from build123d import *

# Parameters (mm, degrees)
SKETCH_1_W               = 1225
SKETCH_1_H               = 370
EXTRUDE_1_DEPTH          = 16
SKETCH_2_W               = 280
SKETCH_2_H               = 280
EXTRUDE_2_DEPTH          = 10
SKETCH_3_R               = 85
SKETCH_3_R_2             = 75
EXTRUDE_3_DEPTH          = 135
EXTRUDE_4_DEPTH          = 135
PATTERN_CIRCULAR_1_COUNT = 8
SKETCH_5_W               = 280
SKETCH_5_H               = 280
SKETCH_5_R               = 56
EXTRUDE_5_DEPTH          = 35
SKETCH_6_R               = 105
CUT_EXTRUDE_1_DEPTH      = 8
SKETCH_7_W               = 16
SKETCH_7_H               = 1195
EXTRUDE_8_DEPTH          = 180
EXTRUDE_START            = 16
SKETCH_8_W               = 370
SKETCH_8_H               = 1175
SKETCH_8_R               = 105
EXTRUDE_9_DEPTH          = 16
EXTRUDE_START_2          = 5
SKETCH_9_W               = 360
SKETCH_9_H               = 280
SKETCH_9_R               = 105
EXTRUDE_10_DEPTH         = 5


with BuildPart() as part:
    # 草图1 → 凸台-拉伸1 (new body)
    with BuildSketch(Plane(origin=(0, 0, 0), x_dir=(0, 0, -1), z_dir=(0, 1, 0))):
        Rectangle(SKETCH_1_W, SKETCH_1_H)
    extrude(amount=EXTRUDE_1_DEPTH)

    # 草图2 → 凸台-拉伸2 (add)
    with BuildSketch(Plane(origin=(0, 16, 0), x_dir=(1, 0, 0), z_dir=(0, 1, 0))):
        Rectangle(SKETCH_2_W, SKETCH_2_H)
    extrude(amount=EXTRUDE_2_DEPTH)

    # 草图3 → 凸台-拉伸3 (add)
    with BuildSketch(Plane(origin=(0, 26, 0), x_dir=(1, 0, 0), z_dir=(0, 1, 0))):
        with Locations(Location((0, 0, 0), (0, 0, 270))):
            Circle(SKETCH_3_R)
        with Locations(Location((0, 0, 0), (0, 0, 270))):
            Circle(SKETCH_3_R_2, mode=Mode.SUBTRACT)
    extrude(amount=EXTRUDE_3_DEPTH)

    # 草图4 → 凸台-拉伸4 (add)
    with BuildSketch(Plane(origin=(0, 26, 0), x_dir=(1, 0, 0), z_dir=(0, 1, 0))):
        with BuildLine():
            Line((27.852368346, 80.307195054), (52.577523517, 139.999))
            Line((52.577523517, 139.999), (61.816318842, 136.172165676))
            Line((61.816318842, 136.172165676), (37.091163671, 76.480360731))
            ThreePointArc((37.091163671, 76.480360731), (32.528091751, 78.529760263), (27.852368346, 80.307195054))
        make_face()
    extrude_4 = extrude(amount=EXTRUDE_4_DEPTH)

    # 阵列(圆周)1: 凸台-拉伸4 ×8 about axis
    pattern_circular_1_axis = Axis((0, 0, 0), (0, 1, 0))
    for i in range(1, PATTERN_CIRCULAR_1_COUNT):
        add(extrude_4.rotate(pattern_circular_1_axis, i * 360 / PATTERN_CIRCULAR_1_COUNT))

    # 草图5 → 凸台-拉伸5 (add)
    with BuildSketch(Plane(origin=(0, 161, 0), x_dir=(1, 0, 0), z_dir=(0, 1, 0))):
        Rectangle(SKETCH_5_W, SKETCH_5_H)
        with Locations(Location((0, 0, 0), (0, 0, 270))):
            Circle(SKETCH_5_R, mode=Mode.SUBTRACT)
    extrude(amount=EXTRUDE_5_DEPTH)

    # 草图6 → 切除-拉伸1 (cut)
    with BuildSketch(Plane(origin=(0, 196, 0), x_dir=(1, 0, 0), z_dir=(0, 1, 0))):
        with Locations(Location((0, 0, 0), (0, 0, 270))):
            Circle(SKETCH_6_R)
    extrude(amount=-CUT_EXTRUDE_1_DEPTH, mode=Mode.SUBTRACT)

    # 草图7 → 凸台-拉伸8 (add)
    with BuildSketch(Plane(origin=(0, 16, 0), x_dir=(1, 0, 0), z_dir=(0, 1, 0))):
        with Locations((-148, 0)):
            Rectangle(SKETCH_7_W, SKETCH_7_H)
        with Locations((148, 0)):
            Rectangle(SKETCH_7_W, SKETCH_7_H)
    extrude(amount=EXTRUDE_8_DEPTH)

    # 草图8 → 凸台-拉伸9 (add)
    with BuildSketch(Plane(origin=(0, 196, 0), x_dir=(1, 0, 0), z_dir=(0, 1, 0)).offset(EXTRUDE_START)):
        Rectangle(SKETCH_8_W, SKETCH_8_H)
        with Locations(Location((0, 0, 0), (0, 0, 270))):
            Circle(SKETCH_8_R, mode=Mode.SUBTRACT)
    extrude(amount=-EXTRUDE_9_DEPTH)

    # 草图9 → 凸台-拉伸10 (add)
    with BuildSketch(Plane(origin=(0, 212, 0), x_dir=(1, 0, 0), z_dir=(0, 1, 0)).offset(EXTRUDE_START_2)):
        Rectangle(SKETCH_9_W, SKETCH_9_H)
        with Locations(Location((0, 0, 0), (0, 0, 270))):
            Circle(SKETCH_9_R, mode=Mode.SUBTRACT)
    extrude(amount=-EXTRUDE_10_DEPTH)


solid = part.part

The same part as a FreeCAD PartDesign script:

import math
import FreeCAD as App
import Part
import Sketcher
from FreeCAD import Vector
Q = App.Units.Quantity

doc = App.newDocument("Part")
body = doc.addObject("PartDesign::Body", "Body")

sketch1 = doc.addObject("Sketcher::SketchObject", "Sketch")
body.addObject(sketch1)
sketch1.AttachmentSupport = (doc.XZ_Plane, [""])
sketch1.MapMode = "FlatFace"
sketch1.addGeometry(Part.LineSegment(Vector(-185, 612, 0), Vector(185, 612, 0)), False)
sketch1.addGeometry(Part.LineSegment(Vector(185, 612, 0), Vector(185, -612, 0)), False)
sketch1.addGeometry(Part.LineSegment(Vector(185, -612, 0), Vector(-185, -612, 0)), False)
sketch1.addGeometry(Part.LineSegment(Vector(-185, -612, 0), Vector(-185, 612, 0)), False)
sketch1.addConstraint(Sketcher.Constraint("Coincident", 0, 2, 1, 1))
sketch1.addConstraint(Sketcher.Constraint("Coincident", 1, 2, 2, 1))
sketch1.addConstraint(Sketcher.Constraint("Coincident", 2, 2, 3, 1))
sketch1.addConstraint(Sketcher.Constraint("Coincident", 3, 2, 0, 1))
sketch1.addConstraint(Sketcher.Constraint("Horizontal", 0))
sketch1.addConstraint(Sketcher.Constraint("Vertical", 1))
sketch1.addConstraint(Sketcher.Constraint("Horizontal", 2))
sketch1.addConstraint(Sketcher.Constraint("Vertical", 3))
sketch1.addConstraint(Sketcher.Constraint("Symmetric", 0, 2, 2, 2, -1, 1))
sketch1.addConstraint(Sketcher.Constraint("DistanceX", 0, 1, 0, 2, Q("370 mm")))
sketch1.addConstraint(Sketcher.Constraint("DistanceY", 1, 2, 1, 1, Q("1225 mm")))
pad1 = doc.addObject("PartDesign::Pad", "Pad")
body.addObject(pad1)
pad1.Profile = sketch1
pad1.Length = 16
pad1.Reversed = True

sketch2 = doc.addObject("Sketcher::SketchObject", "Sketch001")
body.addObject(sketch2)
sketch2.AttachmentSupport = (doc.XZ_Plane, [""])
sketch2.MapMode = "FlatFace"
sketch2.AttachmentOffset = App.Placement(Vector(0, 0, -16), App.Rotation())
sketch2.addGeometry(Part.LineSegment(Vector(-140, -140, 0), Vector(-140, 140, 0)), False)
sketch2.addGeometry(Part.LineSegment(Vector(-140, 140, 0), Vector(140, 140, 0)), False)
sketch2.addGeometry(Part.LineSegment(Vector(140, 140, 0), Vector(140, -140, 0)), False)
sketch2.addGeometry(Part.LineSegment(Vector(140, -140, 0), Vector(-140, -140, 0)), False)
sketch2.addConstraint(Sketcher.Constraint("Coincident", 0, 2, 1, 1))
sketch2.addConstraint(Sketcher.Constraint("Coincident", 1, 2, 2, 1))
sketch2.addConstraint(Sketcher.Constraint("Coincident", 2, 2, 3, 1))
sketch2.addConstraint(Sketcher.Constraint("Coincident", 3, 2, 0, 1))
sketch2.addConstraint(Sketcher.Constraint("Vertical", 0))
sketch2.addConstraint(Sketcher.Constraint("Horizontal", 1))
sketch2.addConstraint(Sketcher.Constraint("Vertical", 2))
sketch2.addConstraint(Sketcher.Constraint("Horizontal", 3))
sketch2.addConstraint(Sketcher.Constraint("Symmetric", 0, 2, 2, 2, -1, 1))
sketch2.addConstraint(Sketcher.Constraint("Equal", 3, 0))
sketch2.addConstraint(Sketcher.Constraint("DistanceX", 1, 1, 1, 2, Q("280 mm")))
pad2 = doc.addObject("PartDesign::Pad", "Pad001")
body.addObject(pad2)
pad2.Profile = sketch2
pad2.Length = 10
pad2.Reversed = True

sketch3 = doc.addObject("Sketcher::SketchObject", "Sketch002")
body.addObject(sketch3)
sketch3.AttachmentSupport = (doc.XZ_Plane, [""])
sketch3.MapMode = "FlatFace"
sketch3.AttachmentOffset = App.Placement(Vector(0, 0, -26), App.Rotation())
sketch3.addGeometry(Part.Circle(Vector(0, 0, 0), Vector(0, 0, 1), 85), False)
sketch3.addGeometry(Part.Circle(Vector(0, 0, 0), Vector(0, 0, 1), 75), False)
sketch3.addConstraint(Sketcher.Constraint("Coincident", 0, 3, -1, 1))
sketch3.addConstraint(Sketcher.Constraint("Coincident", 1, 3, -1, 1))
sketch3.addConstraint(Sketcher.Constraint("Diameter", 0, Q("170 mm")))
sketch3.addConstraint(Sketcher.Constraint("Diameter", 1, Q("150 mm")))
pad3 = doc.addObject("PartDesign::Pad", "Pad002")
body.addObject(pad3)
pad3.Profile = sketch3
pad3.Length = 135
pad3.Reversed = True

sketch4 = doc.addObject("Sketcher::SketchObject", "Sketch003")
body.addObject(sketch4)
sketch4.AttachmentSupport = (doc.XZ_Plane, [""])
sketch4.MapMode = "FlatFace"
sketch4.AttachmentOffset = App.Placement(Vector(0, 0, -26), App.Rotation())
sketch4.addGeometry(Part.LineSegment(Vector(53, -140, 0), Vector(28, -80, 0)), False)
sketch4.addGeometry(Part.ArcOfCircle(Part.Circle(Vector(0, 0, 0), Vector(0, 0, 1), 85), math.radians(-70.87), math.radians(-64.13)), False)
sketch4.addGeometry(Part.LineSegment(Vector(37, -76, 0), Vector(62, -136, 0)), False)
sketch4.addGeometry(Part.LineSegment(Vector(62, -136, 0), Vector(53, -140, 0)), False)
sketch4.addConstraint(Sketcher.Constraint("Coincident", 0, 2, 1, 1))
sketch4.addConstraint(Sketcher.Constraint("Coincident", 1, 2, 2, 1))
sketch4.addConstraint(Sketcher.Constraint("Coincident", 2, 2, 3, 1))
sketch4.addConstraint(Sketcher.Constraint("Coincident", 3, 2, 0, 1))
sketch4.addConstraint(Sketcher.Constraint("Coincident", 1, 3, -1, 1))
sketch4.addConstraint(Sketcher.Constraint("Parallel", 0, 2))
sketch4.addConstraint(Sketcher.Constraint("Perpendicular", 2, 3))
sketch4.addConstraint(Sketcher.Constraint("Equal", 0, 2))
sketch4.addConstraint(Sketcher.Constraint("Radius", 1, Q("85 mm")))
sketch4.addConstraint(Sketcher.Constraint("Distance", 3, Q("10 mm")))
sketch4.addConstraint(Sketcher.Constraint("Angle", 0, Q("112.5 deg")))
sketch4.addConstraint(Sketcher.Constraint("DistanceY", 3, 2, -1, 1, Q("139.999 mm")))
pad4 = doc.addObject("PartDesign::Pad", "Pad003")
body.addObject(pad4)
pad4.Profile = sketch4
pad4.Length = 135
pad4.Reversed = True
doc.recompute()

polarpattern = doc.addObject("PartDesign::PolarPattern", "PolarPattern")
body.addObject(polarpattern)
polarpattern.Originals = [pad4]
polarpattern.Axis = (doc.Y_Axis, [""])
polarpattern.Angle = 360
polarpattern.Occurrences = 8
body.Tip = polarpattern

sketch5 = doc.addObject("Sketcher::SketchObject", "Sketch004")
body.addObject(sketch5)
sketch5.AttachmentSupport = (doc.XZ_Plane, [""])
sketch5.MapMode = "FlatFace"
sketch5.AttachmentOffset = App.Placement(Vector(0, 0, -161), App.Rotation())
sketch5.addGeometry(Part.LineSegment(Vector(-140, -140, 0), Vector(-140, 140, 0)), False)
sketch5.addGeometry(Part.LineSegment(Vector(-140, 140, 0), Vector(140, 140, 0)), False)
sketch5.addGeometry(Part.LineSegment(Vector(140, 140, 0), Vector(140, -140, 0)), False)
sketch5.addGeometry(Part.LineSegment(Vector(140, -140, 0), Vector(-140, -140, 0)), False)
sketch5.addGeometry(Part.Circle(Vector(0, 0, 0), Vector(0, 0, 1), 56), False)
sketch5.addConstraint(Sketcher.Constraint("Coincident", 0, 2, 1, 1))
sketch5.addConstraint(Sketcher.Constraint("Coincident", 1, 2, 2, 1))
sketch5.addConstraint(Sketcher.Constraint("Coincident", 2, 2, 3, 1))
sketch5.addConstraint(Sketcher.Constraint("Coincident", 3, 2, 0, 1))
sketch5.addConstraint(Sketcher.Constraint("Vertical", 0))
sketch5.addConstraint(Sketcher.Constraint("Horizontal", 1))
sketch5.addConstraint(Sketcher.Constraint("Vertical", 2))
sketch5.addConstraint(Sketcher.Constraint("Horizontal", 3))
sketch5.addConstraint(Sketcher.Constraint("Coincident", 4, 3, -1, 1))
sketch5.addConstraint(Sketcher.Constraint("Symmetric", 0, 2, 2, 2, -1, 1))
sketch5.addConstraint(Sketcher.Constraint("Equal", 3, 0))
sketch5.addConstraint(Sketcher.Constraint("Diameter", 4, Q("112 mm")))
sketch5.addConstraint(Sketcher.Constraint("DistanceX", 1, 1, 1, 2, Q("280 mm")))
pad5 = doc.addObject("PartDesign::Pad", "Pad004")
body.addObject(pad5)
pad5.Profile = sketch5
pad5.Length = 35
pad5.Reversed = True

sketch6 = doc.addObject("Sketcher::SketchObject", "Sketch005")
body.addObject(sketch6)
sketch6.AttachmentSupport = (doc.XZ_Plane, [""])
sketch6.MapMode = "FlatFace"
sketch6.AttachmentOffset = App.Placement(Vector(0, 0, -196), App.Rotation())
sketch6.addGeometry(Part.Circle(Vector(0, 0, 0), Vector(0, 0, 1), 105), False)
sketch6.addConstraint(Sketcher.Constraint("Coincident", 0, 3, -1, 1))
sketch6.addConstraint(Sketcher.Constraint("Diameter", 0, Q("210 mm")))
pocket1 = doc.addObject("PartDesign::Pocket", "Pocket")
body.addObject(pocket1)
pocket1.Profile = sketch6
pocket1.Length = 8
pocket1.Reversed = True

sketch7 = doc.addObject("Sketcher::SketchObject", "Sketch006")
body.addObject(sketch7)
sketch7.AttachmentSupport = (doc.XZ_Plane, [""])
sketch7.MapMode = "FlatFace"
sketch7.AttachmentOffset = App.Placement(Vector(0, 0, -16), App.Rotation())
sketch7.addGeometry(Part.LineSegment(Vector(-156, -598, 0), Vector(-156, 598, 0)), False)
sketch7.addGeometry(Part.LineSegment(Vector(-156, 598, 0), Vector(-140, 598, 0)), False)
sketch7.addGeometry(Part.LineSegment(Vector(-140, 598, 0), Vector(-140, -598, 0)), False)
sketch7.addGeometry(Part.LineSegment(Vector(-140, -598, 0), Vector(-156, -598, 0)), False)
sketch7.addGeometry(Part.LineSegment(Vector(140, -598, 0), Vector(140, 598, 0)), False)
sketch7.addGeometry(Part.LineSegment(Vector(140, 598, 0), Vector(156, 598, 0)), False)
sketch7.addGeometry(Part.LineSegment(Vector(156, 598, 0), Vector(156, -598, 0)), False)
sketch7.addGeometry(Part.LineSegment(Vector(156, -598, 0), Vector(140, -598, 0)), False)
sketch7.addConstraint(Sketcher.Constraint("Coincident", 0, 2, 1, 1))
sketch7.addConstraint(Sketcher.Constraint("Coincident", 1, 2, 2, 1))
sketch7.addConstraint(Sketcher.Constraint("Coincident", 2, 2, 3, 1))
sketch7.addConstraint(Sketcher.Constraint("Coincident", 3, 2, 0, 1))
sketch7.addConstraint(Sketcher.Constraint("Coincident", 4, 2, 5, 1))
sketch7.addConstraint(Sketcher.Constraint("Coincident", 5, 2, 6, 1))
sketch7.addConstraint(Sketcher.Constraint("Coincident", 6, 2, 7, 1))
sketch7.addConstraint(Sketcher.Constraint("Coincident", 7, 2, 4, 1))
sketch7.addConstraint(Sketcher.Constraint("Vertical", 0))
sketch7.addConstraint(Sketcher.Constraint("Horizontal", 1))
sketch7.addConstraint(Sketcher.Constraint("Vertical", 2))
sketch7.addConstraint(Sketcher.Constraint("Horizontal", 3))
sketch7.addConstraint(Sketcher.Constraint("Vertical", 4))
sketch7.addConstraint(Sketcher.Constraint("Horizontal", 5))
sketch7.addConstraint(Sketcher.Constraint("Vertical", 6))
sketch7.addConstraint(Sketcher.Constraint("Horizontal", 7))
sketch7.addConstraint(Sketcher.Constraint("Symmetric", 2, 2, 4, 2, -1, 1))
sketch7.addConstraint(Sketcher.Constraint("Symmetric", 0, 2, 6, 2, -1, 1))
sketch7.addConstraint(Sketcher.Constraint("Horizontal", 1, 2, 4, 2))
sketch7.addConstraint(Sketcher.Constraint("DistanceX", 1, 1, 1, 2, Q("16 mm")))
sketch7.addConstraint(Sketcher.Constraint("DistanceY", 0, 1, 0, 2, Q("1195 mm")))
sketch7.addConstraint(Sketcher.Constraint("DistanceX", 0, 2, -1, 1, Q("156 mm")))
pad6 = doc.addObject("PartDesign::Pad", "Pad005")
body.addObject(pad6)
pad6.Profile = sketch7
pad6.Length = 180
pad6.Reversed = True

sketch8 = doc.addObject("Sketcher::SketchObject", "Sketch007")
body.addObject(sketch8)
sketch8.AttachmentSupport = (doc.XZ_Plane, [""])
sketch8.MapMode = "FlatFace"
sketch8.AttachmentOffset = App.Placement(Vector(0, 0, -212), App.Rotation())
sketch8.addGeometry(Part.LineSegment(Vector(-185, -588, 0), Vector(-185, 588, 0)), False)
sketch8.addGeometry(Part.LineSegment(Vector(-185, 588, 0), Vector(185, 588, 0)), False)
sketch8.addGeometry(Part.LineSegment(Vector(185, 588, 0), Vector(185, -588, 0)), False)
sketch8.addGeometry(Part.LineSegment(Vector(185, -588, 0), Vector(-185, -588, 0)), False)
sketch8.addGeometry(Part.Circle(Vector(0, 0, 0), Vector(0, 0, 1), 105), False)
sketch8.addConstraint(Sketcher.Constraint("Coincident", 0, 2, 1, 1))
sketch8.addConstraint(Sketcher.Constraint("Coincident", 1, 2, 2, 1))
sketch8.addConstraint(Sketcher.Constraint("Coincident", 2, 2, 3, 1))
sketch8.addConstraint(Sketcher.Constraint("Coincident", 3, 2, 0, 1))
sketch8.addConstraint(Sketcher.Constraint("Vertical", 0))
sketch8.addConstraint(Sketcher.Constraint("Horizontal", 1))
sketch8.addConstraint(Sketcher.Constraint("Vertical", 2))
sketch8.addConstraint(Sketcher.Constraint("Horizontal", 3))
sketch8.addConstraint(Sketcher.Constraint("Coincident", 4, 3, -1, 1))
sketch8.addConstraint(Sketcher.Constraint("Symmetric", 0, 2, 2, 2, -1, 1))
sketch8.addConstraint(Sketcher.Constraint("Diameter", 4, Q("210 mm")))
sketch8.addConstraint(Sketcher.Constraint("DistanceX", 1, 1, 1, 2, Q("370 mm")))
sketch8.addConstraint(Sketcher.Constraint("DistanceY", 0, 1, 0, 2, Q("1175 mm")))
pad7 = doc.addObject("PartDesign::Pad", "Pad006")
body.addObject(pad7)
pad7.Profile = sketch8
pad7.Length = 16

sketch9 = doc.addObject("Sketcher::SketchObject", "Sketch008")
body.addObject(sketch9)
sketch9.AttachmentSupport = (doc.XZ_Plane, [""])
sketch9.MapMode = "FlatFace"
sketch9.AttachmentOffset = App.Placement(Vector(0, 0, -217), App.Rotation())
sketch9.addGeometry(Part.LineSegment(Vector(-180, -140, 0), Vector(-180, 140, 0)), False)
sketch9.addGeometry(Part.LineSegment(Vector(-180, 140, 0), Vector(180, 140, 0)), False)
sketch9.addGeometry(Part.LineSegment(Vector(180, 140, 0), Vector(180, -140, 0)), False)
sketch9.addGeometry(Part.LineSegment(Vector(180, -140, 0), Vector(-180, -140, 0)), False)
sketch9.addGeometry(Part.Circle(Vector(0, 0, 0), Vector(0, 0, 1), 105), False)
sketch9.addConstraint(Sketcher.Constraint("Coincident", 0, 2, 1, 1))
sketch9.addConstraint(Sketcher.Constraint("Coincident", 1, 2, 2, 1))
sketch9.addConstraint(Sketcher.Constraint("Coincident", 2, 2, 3, 1))
sketch9.addConstraint(Sketcher.Constraint("Coincident", 3, 2, 0, 1))
sketch9.addConstraint(Sketcher.Constraint("Vertical", 0))
sketch9.addConstraint(Sketcher.Constraint("Horizontal", 1))
sketch9.addConstraint(Sketcher.Constraint("Vertical", 2))
sketch9.addConstraint(Sketcher.Constraint("Horizontal", 3))
sketch9.addConstraint(Sketcher.Constraint("Coincident", 4, 3, -1, 1))
sketch9.addConstraint(Sketcher.Constraint("Symmetric", 0, 2, 2, 2, -1, 1))
sketch9.addConstraint(Sketcher.Constraint("Diameter", 4, Q("210 mm")))
sketch9.addConstraint(Sketcher.Constraint("DistanceX", 1, 1, 1, 2, Q("360 mm")))
sketch9.addConstraint(Sketcher.Constraint("DistanceY", 0, 1, 0, 2, Q("280 mm")))
pad8 = doc.addObject("PartDesign::Pad", "Pad007")
body.addObject(pad8)
pad8.Profile = sketch9
pad8.Length = 5

doc.recompute()
